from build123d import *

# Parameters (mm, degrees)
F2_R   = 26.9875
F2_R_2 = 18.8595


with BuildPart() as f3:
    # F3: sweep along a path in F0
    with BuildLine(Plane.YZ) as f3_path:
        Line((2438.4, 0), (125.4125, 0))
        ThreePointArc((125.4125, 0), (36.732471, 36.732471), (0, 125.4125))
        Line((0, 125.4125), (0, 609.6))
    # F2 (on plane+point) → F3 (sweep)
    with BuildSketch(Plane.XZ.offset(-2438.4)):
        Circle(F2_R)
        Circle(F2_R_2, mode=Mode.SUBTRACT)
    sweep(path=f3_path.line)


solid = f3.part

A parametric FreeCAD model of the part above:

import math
import FreeCAD as App
import Part
import Sketcher
Q = App.Units.Quantity

doc = App.newDocument("Part")
body = doc.addObject("PartDesign::Body", "Body")

# Sketch on XZ plane
sketch1 = body.newObject("Sketcher::SketchObject", "Sketch")
sketch1.AttachmentSupport = (doc.getObject("XZ_Plane"), [""])
sketch1.MapMode = "FlatFace"
sketch1.AttachmentOffset = App.Placement(App.Vector(0, 0, -96 * 25.4), App.Rotation())
sketch1.addGeometry([
    Part.Circle(App.Vector(0, 0, 0), App.Vector(0, 0, 1), 27),
    Part.Circle(App.Vector(0, 0, 0), App.Vector(0, 0, 1), 19),
], False)
sketch1.addConstraint([
    Sketcher.Constraint("Coincident", 0, 3, -1, 1),
    Sketcher.Constraint("Coincident", 1, 3, -1, 1),
    Sketcher.Constraint("Diameter", 0, Q("2.125 in")),
    Sketcher.Constraint("Diameter", 1, Q("1.485 in")),
])

# Sketch on YZ plane
sketch2 = body.newObject("Sketcher::SketchObject", "Sketch001")
sketch2.AttachmentSupport = (doc.getObject("YZ_Plane"), [""])
sketch2.MapMode = "FlatFace"
sketch2.addGeometry([
    Part.LineSegment(App.Vector(2438, 0, 0), App.Vector(125, 0, 0)),
    Part.ArcOfCircle(Part.Circle(App.Vector(125, 125, 0), App.Vector(0, 0, 1), 125), math.radians(-180), math.radians(-90)),
    Part.LineSegment(App.Vector(0, 125, 0), App.Vector(0, 610, 0)),
], False)
sketch2.addConstraint([
    Sketcher.Constraint("Tangent", 0, 2, 1, 2),
    Sketcher.Constraint("Tangent", 1, 1, 2, 1),
    Sketcher.Constraint("Horizontal", 0),
    Sketcher.Constraint("Vertical", 2),
    Sketcher.Constraint("PointOnObject", 0, 1, -1),
    Sketcher.Constraint("PointOnObject", 1, 1, -2),
    Sketcher.Constraint("DistanceX", -1, 1, 0, 1, Q("96 in")),
    Sketcher.Constraint("DistanceY", -1, 1, 2, 2, Q("24 in")),
    Sketcher.Constraint("Radius", 1, Q("4.9375 in")),
])
doc.recompute()

additivepipe = body.newObject("PartDesign::AdditivePipe", "AdditivePipe")
additivepipe.Profile = sketch1
additivepipe.Spine = (sketch2, ["Edge1", "Edge2", "Edge3"])

doc.recompute()
